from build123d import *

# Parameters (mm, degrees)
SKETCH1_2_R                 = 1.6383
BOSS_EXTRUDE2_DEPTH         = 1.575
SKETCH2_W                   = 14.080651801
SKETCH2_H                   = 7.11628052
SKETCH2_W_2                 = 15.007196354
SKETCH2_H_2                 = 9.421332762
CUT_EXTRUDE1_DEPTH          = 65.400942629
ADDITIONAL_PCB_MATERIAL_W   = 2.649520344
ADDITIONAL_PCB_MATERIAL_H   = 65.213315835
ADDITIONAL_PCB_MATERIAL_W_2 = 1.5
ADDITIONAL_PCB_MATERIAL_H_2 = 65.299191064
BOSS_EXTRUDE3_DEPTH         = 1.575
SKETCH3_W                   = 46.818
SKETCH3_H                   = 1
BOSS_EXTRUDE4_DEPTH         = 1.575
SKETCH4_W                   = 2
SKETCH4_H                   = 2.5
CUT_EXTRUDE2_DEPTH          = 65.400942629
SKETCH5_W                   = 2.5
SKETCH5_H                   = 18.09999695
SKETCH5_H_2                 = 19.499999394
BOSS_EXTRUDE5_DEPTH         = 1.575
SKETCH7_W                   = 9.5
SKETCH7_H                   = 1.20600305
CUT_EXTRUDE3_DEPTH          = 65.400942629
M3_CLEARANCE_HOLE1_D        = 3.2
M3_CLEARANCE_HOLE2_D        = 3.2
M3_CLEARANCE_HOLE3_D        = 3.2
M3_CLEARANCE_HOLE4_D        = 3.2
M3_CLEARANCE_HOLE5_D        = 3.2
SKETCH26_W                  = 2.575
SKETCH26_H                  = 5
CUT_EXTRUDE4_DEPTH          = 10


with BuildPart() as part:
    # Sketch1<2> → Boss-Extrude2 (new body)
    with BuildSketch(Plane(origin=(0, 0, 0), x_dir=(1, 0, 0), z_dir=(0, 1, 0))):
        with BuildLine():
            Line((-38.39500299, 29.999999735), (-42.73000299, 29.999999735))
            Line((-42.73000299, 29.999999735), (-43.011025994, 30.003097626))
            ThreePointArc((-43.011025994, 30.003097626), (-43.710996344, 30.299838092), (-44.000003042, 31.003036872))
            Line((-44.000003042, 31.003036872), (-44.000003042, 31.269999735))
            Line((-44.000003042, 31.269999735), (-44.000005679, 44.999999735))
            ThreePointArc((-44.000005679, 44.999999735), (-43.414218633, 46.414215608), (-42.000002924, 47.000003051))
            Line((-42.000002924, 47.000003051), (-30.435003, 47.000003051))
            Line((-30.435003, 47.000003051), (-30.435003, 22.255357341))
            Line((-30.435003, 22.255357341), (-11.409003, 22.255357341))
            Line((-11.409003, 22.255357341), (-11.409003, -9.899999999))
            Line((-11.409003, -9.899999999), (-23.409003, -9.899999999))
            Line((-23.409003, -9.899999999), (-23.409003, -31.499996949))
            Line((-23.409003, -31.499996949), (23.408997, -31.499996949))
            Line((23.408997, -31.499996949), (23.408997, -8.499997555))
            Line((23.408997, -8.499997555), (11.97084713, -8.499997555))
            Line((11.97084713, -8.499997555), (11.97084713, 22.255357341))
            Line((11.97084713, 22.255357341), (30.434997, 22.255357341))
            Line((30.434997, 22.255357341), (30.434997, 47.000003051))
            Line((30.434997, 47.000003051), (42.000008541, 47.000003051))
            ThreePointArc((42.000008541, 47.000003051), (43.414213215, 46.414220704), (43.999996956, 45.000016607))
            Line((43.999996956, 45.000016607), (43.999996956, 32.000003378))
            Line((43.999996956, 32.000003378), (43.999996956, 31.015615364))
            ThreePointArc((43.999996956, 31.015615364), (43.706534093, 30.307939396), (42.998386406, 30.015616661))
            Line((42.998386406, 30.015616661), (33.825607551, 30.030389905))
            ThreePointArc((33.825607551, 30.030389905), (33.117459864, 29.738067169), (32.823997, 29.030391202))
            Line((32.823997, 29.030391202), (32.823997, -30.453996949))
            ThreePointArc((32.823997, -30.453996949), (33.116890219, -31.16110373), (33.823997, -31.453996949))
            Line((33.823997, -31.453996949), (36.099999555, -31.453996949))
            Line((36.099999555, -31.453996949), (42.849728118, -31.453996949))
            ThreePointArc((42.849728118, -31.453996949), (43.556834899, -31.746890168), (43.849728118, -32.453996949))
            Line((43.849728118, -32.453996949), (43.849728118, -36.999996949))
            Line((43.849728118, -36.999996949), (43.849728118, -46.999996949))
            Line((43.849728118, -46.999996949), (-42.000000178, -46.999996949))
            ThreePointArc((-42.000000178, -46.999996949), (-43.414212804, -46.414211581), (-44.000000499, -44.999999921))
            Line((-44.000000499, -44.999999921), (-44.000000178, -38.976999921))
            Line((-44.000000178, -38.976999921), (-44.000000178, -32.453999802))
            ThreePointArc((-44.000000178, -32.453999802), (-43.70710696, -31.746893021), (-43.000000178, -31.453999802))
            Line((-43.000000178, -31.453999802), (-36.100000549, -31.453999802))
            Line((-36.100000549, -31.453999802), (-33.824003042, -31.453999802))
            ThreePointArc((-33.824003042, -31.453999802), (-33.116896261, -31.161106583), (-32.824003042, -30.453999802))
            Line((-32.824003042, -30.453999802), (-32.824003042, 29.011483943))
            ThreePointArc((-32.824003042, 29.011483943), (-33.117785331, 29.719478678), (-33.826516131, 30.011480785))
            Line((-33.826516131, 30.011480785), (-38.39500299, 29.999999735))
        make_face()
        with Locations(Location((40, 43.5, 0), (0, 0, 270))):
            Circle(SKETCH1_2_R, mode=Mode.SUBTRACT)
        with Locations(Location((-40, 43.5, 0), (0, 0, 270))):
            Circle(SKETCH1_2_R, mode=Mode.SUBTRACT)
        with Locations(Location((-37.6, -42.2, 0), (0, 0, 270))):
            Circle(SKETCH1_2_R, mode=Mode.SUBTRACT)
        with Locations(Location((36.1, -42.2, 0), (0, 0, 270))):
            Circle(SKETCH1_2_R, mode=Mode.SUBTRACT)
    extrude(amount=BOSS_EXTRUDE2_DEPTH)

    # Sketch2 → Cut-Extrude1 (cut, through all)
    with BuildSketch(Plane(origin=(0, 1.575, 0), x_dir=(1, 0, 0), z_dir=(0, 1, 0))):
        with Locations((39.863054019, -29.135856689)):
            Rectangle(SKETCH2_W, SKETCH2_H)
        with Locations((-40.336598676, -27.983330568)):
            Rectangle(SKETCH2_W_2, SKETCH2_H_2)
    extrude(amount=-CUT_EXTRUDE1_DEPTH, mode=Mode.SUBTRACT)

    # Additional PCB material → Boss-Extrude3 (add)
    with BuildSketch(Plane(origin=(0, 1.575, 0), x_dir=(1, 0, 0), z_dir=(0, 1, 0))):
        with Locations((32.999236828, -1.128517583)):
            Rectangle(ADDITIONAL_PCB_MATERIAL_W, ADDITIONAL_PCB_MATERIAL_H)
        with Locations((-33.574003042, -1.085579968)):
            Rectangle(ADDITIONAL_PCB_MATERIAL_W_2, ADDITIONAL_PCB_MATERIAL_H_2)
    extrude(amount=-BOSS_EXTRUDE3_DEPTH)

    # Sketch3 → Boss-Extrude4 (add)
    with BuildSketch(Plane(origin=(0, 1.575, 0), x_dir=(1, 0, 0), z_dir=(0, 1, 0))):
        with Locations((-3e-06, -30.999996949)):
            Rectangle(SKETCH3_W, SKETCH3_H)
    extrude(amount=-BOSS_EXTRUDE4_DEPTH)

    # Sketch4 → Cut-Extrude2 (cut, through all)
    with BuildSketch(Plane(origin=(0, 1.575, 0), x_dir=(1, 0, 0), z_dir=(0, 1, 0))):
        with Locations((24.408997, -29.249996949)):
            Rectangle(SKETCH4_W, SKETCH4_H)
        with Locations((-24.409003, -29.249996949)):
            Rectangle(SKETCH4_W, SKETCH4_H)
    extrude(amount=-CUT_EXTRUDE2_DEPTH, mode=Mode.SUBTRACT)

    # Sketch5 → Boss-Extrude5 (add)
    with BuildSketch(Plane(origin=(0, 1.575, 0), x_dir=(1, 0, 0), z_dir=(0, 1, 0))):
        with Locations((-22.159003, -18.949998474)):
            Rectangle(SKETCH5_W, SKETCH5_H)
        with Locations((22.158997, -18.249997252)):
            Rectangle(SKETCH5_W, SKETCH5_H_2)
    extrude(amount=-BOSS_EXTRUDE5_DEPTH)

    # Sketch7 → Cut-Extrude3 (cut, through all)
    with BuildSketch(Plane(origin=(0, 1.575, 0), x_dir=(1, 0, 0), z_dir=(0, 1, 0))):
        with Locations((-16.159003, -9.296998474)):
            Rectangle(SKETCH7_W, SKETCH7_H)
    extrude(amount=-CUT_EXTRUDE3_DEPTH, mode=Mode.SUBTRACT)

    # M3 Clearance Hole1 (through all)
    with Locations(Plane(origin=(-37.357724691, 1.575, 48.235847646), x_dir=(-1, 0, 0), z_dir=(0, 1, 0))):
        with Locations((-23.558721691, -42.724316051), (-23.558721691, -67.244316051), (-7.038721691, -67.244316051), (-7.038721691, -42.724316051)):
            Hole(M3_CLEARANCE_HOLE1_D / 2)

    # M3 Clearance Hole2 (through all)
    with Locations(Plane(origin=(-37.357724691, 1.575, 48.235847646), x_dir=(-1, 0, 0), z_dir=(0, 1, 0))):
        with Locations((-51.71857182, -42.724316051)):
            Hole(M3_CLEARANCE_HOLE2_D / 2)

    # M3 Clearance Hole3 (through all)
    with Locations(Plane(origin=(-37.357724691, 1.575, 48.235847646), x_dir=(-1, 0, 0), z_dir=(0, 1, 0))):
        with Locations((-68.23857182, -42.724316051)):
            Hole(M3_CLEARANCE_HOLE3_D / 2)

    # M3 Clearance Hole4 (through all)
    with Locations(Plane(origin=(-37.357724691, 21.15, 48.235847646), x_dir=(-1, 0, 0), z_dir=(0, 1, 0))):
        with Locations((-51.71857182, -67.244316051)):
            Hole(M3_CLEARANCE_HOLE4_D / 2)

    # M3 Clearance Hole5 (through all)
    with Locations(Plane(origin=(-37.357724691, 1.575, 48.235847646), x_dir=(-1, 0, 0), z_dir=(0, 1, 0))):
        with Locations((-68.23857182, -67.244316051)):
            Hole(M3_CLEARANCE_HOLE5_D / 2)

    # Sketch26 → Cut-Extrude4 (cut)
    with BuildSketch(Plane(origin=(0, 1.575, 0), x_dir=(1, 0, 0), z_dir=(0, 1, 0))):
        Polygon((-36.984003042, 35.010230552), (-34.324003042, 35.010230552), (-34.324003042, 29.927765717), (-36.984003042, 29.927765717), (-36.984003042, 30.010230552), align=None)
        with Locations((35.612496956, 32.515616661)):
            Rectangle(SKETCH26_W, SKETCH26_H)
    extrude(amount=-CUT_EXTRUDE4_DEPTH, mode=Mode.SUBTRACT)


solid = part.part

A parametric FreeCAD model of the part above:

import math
import FreeCAD as App
import Part
import Sketcher

V = App.Vector
Q = App.Units.Quantity


def add_polygon(sketch, points):
    """Adds a closed chain of lines whose ends are joined by coincident constraints."""
    first, n = sketch.GeometryCount, len(points)
    for a, b in zip(points, points[1:] + points[:1]):
        sketch.addGeometry(Part.LineSegment(App.Vector(*a, 0), App.Vector(*b, 0)), False)
    for i in range(n):
        sketch.addConstraint(Sketcher.Constraint("Coincident", first + i, 2, first + (i + 1) % n, 1))

doc = App.newDocument("Part")
body = doc.addObject("PartDesign::Body", "Body")

# Sketch on XZ plane
sketch1 = body.newObject("Sketcher::SketchObject", "Sketch")
sketch1.AttachmentSupport = (doc.getObject("XZ_Plane"), [""])
sketch1.MapMode = "FlatFace"
sketch1.addGeometry(Part.LineSegment(V(-42.730003, -30, 0), V(-38.395003, -30, 0)), False)
sketch1.addGeometry(Part.LineSegment(V(-38.395003, -30, 0), V(-33.826516, -30.011481, 0)), False)
sketch1.addGeometry(Part.ArcOfCircle(Part.Circle(V(-33.824003, -29.011484, 0), V(0, 0, 1), 1), math.radians(-90.14399), math.radians(0)), False)
sketch1.addGeometry(Part.LineSegment(V(-32.824003, -29.011484, 0), V(-32.824003, 30.454, 0)), False)
sketch1.addGeometry(Part.ArcOfCircle(Part.Circle(V(-33.824003, 30.454, 0), V(0, 0, 1), 1), math.radians(0), math.radians(90)), False)
sketch1.addGeometry(Part.LineSegment(V(-33.824003, 31.454, 0), V(-43, 31.454, 0)), False)
sketch1.addGeometry(Part.ArcOfCircle(Part.Circle(V(-43, 32.454, 0), V(0, 0, 1), 1), math.radians(180), math.radians(270)), False)
sketch1.addGeometry(Part.LineSegment(V(-44, 32.454, 0), V(-44, 38.977, 0)), False)
sketch1.addGeometry(Part.LineSegment(V(-44, 38.977, 0), V(-44, 45, 0)), False)
sketch1.addGeometry(Part.ArcOfCircle(Part.Circle(V(-42, 44.999997, 0), V(0, 0, 1), 2), math.radians(90), math.radians(179.999906)), False)
sketch1.addGeometry(Part.LineSegment(V(-42, 46.999997, 0), V(43.849728, 46.999997, 0)), False)
sketch1.addGeometry(Part.LineSegment(V(43.849728, 46.999997, 0), V(43.849728, 32.453997, 0)), False)
sketch1.addGeometry(Part.ArcOfCircle(Part.Circle(V(42.849728, 32.453997, 0), V(0, 0, 1), 1), math.radians(-90), math.radians(0)), False)
sketch1.addGeometry(Part.LineSegment(V(42.849728, 31.453997, 0), V(33.823997, 31.453997, 0)), False)
sketch1.addGeometry(Part.ArcOfCircle(Part.Circle(V(33.823997, 30.453997, 0), V(0, 0, 1), 1), math.radians(90), math.radians(180)), False)
sketch1.addGeometry(Part.LineSegment(V(32.823997, 30.453997, 0), V(32.823997, -29.030391, 0)), False)
sketch1.addGeometry(Part.ArcOfCircle(Part.Circle(V(33.823997, -29.030391, 0), V(0, 0, 1), 1), math.radians(-180), math.radians(-89.907722)), False)
sketch1.addGeometry(Part.LineSegment(V(33.825608, -30.03039, 0), V(42.998386, -30.015617, 0)), False)
sketch1.addGeometry(Part.ArcOfCircle(Part.Circle(V(42.999997, -31.015615, 0), V(0, 0, 1), 1), math.radians(0), math.radians(90.092278)), False)
sketch1.addGeometry(Part.LineSegment(V(43.999997, -31.015615, 0), V(43.999997, -45.000017, 0)), False)
sketch1.addGeometry(Part.ArcOfCircle(Part.Circle(V(42.000009, -45.000015, 0), V(0, 0, 1), 1.999988), math.radians(-90), math.radians(-0.000056)), False)
sketch1.addGeometry(Part.LineSegment(V(42.000009, -47.000003, 0), V(30.434997, -47.000003, 0)), False)
sketch1.addGeometry(Part.LineSegment(V(30.434997, -47.000003, 0), V(30.434997, -22.255357, 0)), False)
sketch1.addGeometry(Part.LineSegment(V(30.434997, -22.255357, 0), V(11.970847, -22.255357, 0)), False)
sketch1.addGeometry(Part.LineSegment(V(11.970847, -22.255357, 0), V(11.970847, 8.499998, 0)), False)
sketch1.addGeometry(Part.LineSegment(V(11.970847, 8.499998, 0), V(23.408997, 8.499998, 0)), False)
sketch1.addGeometry(Part.LineSegment(V(23.408997, 8.499998, 0), V(23.408997, 31.499997, 0)), False)
sketch1.addGeometry(Part.LineSegment(V(23.408997, 31.499997, 0), V(-23.409003, 31.499997, 0)), False)
sketch1.addGeometry(Part.LineSegment(V(-23.409003, 31.499997, 0), V(-23.409003, 9.9, 0)), False)
sketch1.addGeometry(Part.LineSegment(V(-23.409003, 9.9, 0), V(-11.409003, 9.9, 0)), False)
sketch1.addGeometry(Part.LineSegment(V(-11.409003, 9.9, 0), V(-11.409003, -22.255357, 0)), False)
sketch1.addGeometry(Part.LineSegment(V(-11.409003, -22.255357, 0), V(-30.435003, -22.255357, 0)), False)
sketch1.addGeometry(Part.LineSegment(V(-30.435003, -22.255357, 0), V(-30.435003, -47.000003, 0)), False)
sketch1.addGeometry(Part.LineSegment(V(-30.435003, -47.000003, 0), V(-42.000003, -47.000003, 0)), False)
sketch1.addGeometry(Part.ArcOfCircle(Part.Circle(V(-42.000003, -45, 0), V(0, 0, 1), 2.000003), math.radians(179.999984), math.radians(270)), False)
sketch1.addGeometry(Part.LineSegment(V(-44.000006, -45, 0), V(-44.000003, -31.27, 0)), False)
sketch1.addGeometry(Part.LineSegment(V(-44.000003, -31.27, 0), V(-44.000003, -31.003037, 0)), False)
sketch1.addGeometry(Part.ArcOfCircle(Part.Circle(V(-43.000003, -31.003037, 0), V(0, 0, 1), 1), math.radians(90.631581), math.radians(180)), False)
sketch1.addGeometry(Part.LineSegment(V(-43.011026, -30.003098, 0), V(-42.730003, -30, 0)), False)
sketch1.addGeometry(Part.Circle(V(36.1, 42.2, 0), V(0, 0, 1), 1.6383), False)
sketch1.addGeometry(Part.Circle(V(-37.6, 42.2, 0), V(0, 0, 1), 1.6383), False)
sketch1.addGeometry(Part.Circle(V(40, -43.5, 0), V(0, 0, 1), 1.6383), False)
sketch1.addGeometry(Part.Circle(V(-40, -43.5, 0), V(0, 0, 1), 1.6383), False)
sketch1.addConstraint(Sketcher.Constraint("Coincident", 0, 2, 1, 1))
sketch1.addConstraint(Sketcher.Constraint("Tangent", 1, 2, 2, 1))
sketch1.addConstraint(Sketcher.Constraint("Tangent", 2, 2, 3, 1))
sketch1.addConstraint(Sketcher.Constraint("Tangent", 3, 2, 4, 1))
sketch1.addConstraint(Sketcher.Constraint("Tangent", 4, 2, 5, 1))
sketch1.addConstraint(Sketcher.Constraint("Tangent", 5, 2, 6, 2))
sketch1.addConstraint(Sketcher.Constraint("Tangent", 6, 1, 7, 1))
sketch1.addConstraint(Sketcher.Constraint("Coincident", 7, 2, 8, 1))
sketch1.addConstraint(Sketcher.Constraint("Tangent", 8, 2, 9, 2))
sketch1.addConstraint(Sketcher.Constraint("Tangent", 9, 1, 10, 1))
sketch1.addConstraint(Sketcher.Constraint("Coincident", 10, 2, 11, 1))
sketch1.addConstraint(Sketcher.Constraint("Tangent", 11, 2, 12, 2))
sketch1.addConstraint(Sketcher.Constraint("Tangent", 12, 1, 13, 1))
sketch1.addConstraint(Sketcher.Constraint("Tangent", 13, 2, 14, 1))
sketch1.addConstraint(Sketcher.Constraint("Tangent", 14, 2, 15, 1))
sketch1.addConstraint(Sketcher.Constraint("Tangent", 15, 2, 16, 1))
sketch1.addConstraint(Sketcher.Constraint("Tangent", 16, 2, 17, 1))
sketch1.addConstraint(Sketcher.Constraint("Tangent", 17, 2, 18, 2))
sketch1.addConstraint(Sketcher.Constraint("Tangent", 18, 1, 19, 1))
sketch1.addConstraint(Sketcher.Constraint("Tangent", 19, 2, 20, 2))
sketch1.addConstraint(Sketcher.Constraint("Tangent", 20, 1, 21, 1))
sketch1.addConstraint(Sketcher.Constraint("Coincident", 21, 2, 22, 1))
sketch1.addConstraint(Sketcher.Constraint("Coincident", 22, 2, 23, 1))
sketch1.addConstraint(Sketcher.Constraint("Coincident", 23, 2, 24, 1))
sketch1.addConstraint(Sketcher.Constraint("Coincident", 24, 2, 25, 1))
sketch1.addConstraint(Sketcher.Constraint("Coincident", 25, 2, 26, 1))
sketch1.addConstraint(Sketcher.Constraint("Coincident", 26, 2, 27, 1))
sketch1.addConstraint(Sketcher.Constraint("Coincident", 27, 2, 28, 1))
sketch1.addConstraint(Sketcher.Constraint("Coincident", 28, 2, 29, 1))
sketch1.addConstraint(Sketcher.Constraint("Coincident", 29, 2, 30, 1))
sketch1.addConstraint(Sketcher.Constraint("Coincident", 30, 2, 31, 1))
sketch1.addConstraint(Sketcher.Constraint("Coincident", 31, 2, 32, 1))
sketch1.addConstraint(Sketcher.Constraint("Coincident", 32, 2, 33, 1))
sketch1.addConstraint(Sketcher.Constraint("Tangent", 33, 2, 34, 2))
sketch1.addConstraint(Sketcher.Constraint("Tangent", 34, 1, 35, 1))
sketch1.addConstraint(Sketcher.Constraint("Coincident", 35, 2, 36, 1))
sketch1.addConstraint(Sketcher.Constraint("Tangent", 36, 2, 37, 2))
sketch1.addConstraint(Sketcher.Constraint("Tangent", 37, 1, 38, 1))
sketch1.addConstraint(Sketcher.Constraint("Coincident", 38, 2, 0, 1))
sketch1.addConstraint(Sketcher.Constraint("Horizontal", 0))
sketch1.addConstraint(Sketcher.Constraint("Vertical", 3))
sketch1.addConstraint(Sketcher.Constraint("Horizontal", 5))
sketch1.addConstraint(Sketcher.Constraint("Vertical", 7))
sketch1.addConstraint(Sketcher.Constraint("Vertical", 8))
sketch1.addConstraint(Sketcher.Constraint("Horizontal", 10))
sketch1.addConstraint(Sketcher.Constraint("Vertical", 11))
sketch1.addConstraint(Sketcher.Constraint("Horizontal", 13))
sketch1.addConstraint(Sketcher.Constraint("Vertical", 15))
sketch1.addConstraint(Sketcher.Constraint("Vertical", 19))
sketch1.addConstraint(Sketcher.Constraint("Horizontal", 21))
sketch1.addConstraint(Sketcher.Constraint("Vertical", 22))
sketch1.addConstraint(Sketcher.Constraint("Horizontal", 23))
sketch1.addConstraint(Sketcher.Constraint("Vertical", 24))
sketch1.addConstraint(Sketcher.Constraint("Horizontal", 25))
sketch1.addConstraint(Sketcher.Constraint("Vertical", 26))
sketch1.addConstraint(Sketcher.Constraint("Horizontal", 27))
sketch1.addConstraint(Sketcher.Constraint("Vertical", 28))
sketch1.addConstraint(Sketcher.Constraint("Horizontal", 29))
sketch1.addConstraint(Sketcher.Constraint("Vertical", 30))
sketch1.addConstraint(Sketcher.Constraint("Horizontal", 31))
sketch1.addConstraint(Sketcher.Constraint("Vertical", 32))
sketch1.addConstraint(Sketcher.Constraint("Horizontal", 33))
sketch1.addConstraint(Sketcher.Constraint("Vertical", 36))
sketch1.addConstraint(Sketcher.Constraint("Equal", 2, 4))
sketch1.addConstraint(Sketcher.Constraint("Equal", 4, 6))
sketch1.addConstraint(Sketcher.Constraint("Equal", 6, 12))
sketch1.addConstraint(Sketcher.Constraint("Equal", 12, 14))
sketch1.addConstraint(Sketcher.Constraint("Equal", 14, 16))
sketch1.addConstraint(Sketcher.Constraint("Equal", 16, 18))
sketch1.addConstraint(Sketcher.Constraint("Equal", 18, 37))
sketch1.addConstraint(Sketcher.Constraint("Equal", 39, 40))
sketch1.addConstraint(Sketcher.Constraint("Equal", 40, 41))
sketch1.addConstraint(Sketcher.Constraint("Equal", 41, 42))
sketch1.addConstraint(Sketcher.Constraint("Symmetric", 4, 3, 14, 3, -2))
sketch1.addConstraint(Sketcher.Constraint("Symmetric", 41, 3, 42, 3, -2))
sketch1.addConstraint(Sketcher.Constraint("Symmetric", 22, 2, 31, 2, -2))
sketch1.addConstraint(Sketcher.Constraint("Symmetric", 20, 1, 33, 2, -2))
sketch1.addConstraint(Sketcher.Constraint("Symmetric", 9, 3, 34, 3, -1))
sketch1.addConstraint(Sketcher.Constraint("Symmetric", 8, 2, 34, 1, -1))
sketch1.addConstraint(Sketcher.Constraint("Horizontal", 39, 3, 40, 3))
sketch1.addConstraint(Sketcher.Constraint("Radius", 2, Q("1 mm")))
sketch1.addConstraint(Sketcher.Constraint("Radius", 9, Q("2 mm")))
sketch1.addConstraint(Sketcher.Constraint("DistanceX", 29, 1, 29, 2, Q("12 mm")))
sketch1.addConstraint(Sketcher.Constraint("DistanceY", 26, 1, 26, 2, Q("22.999999 mm")))
sketch1.addConstraint(Sketcher.Constraint("DistanceX", 6, 3, -1, 1, Q("43 mm")))
sketch1.addConstraint(Sketcher.Constraint("DistanceY", 34, 3, -1, 1, Q("45 mm")))
sketch1.addConstraint(Sketcher.Constraint("DistanceX", -1, 1, 41, 3, Q("40 mm")))
sketch1.addConstraint(Sketcher.Constraint("DistanceY", 0, 2, -1, 1, Q("30 mm")))
sketch1.addConstraint(Sketcher.Constraint("Diameter", 39, Q("3.2766 mm")))
sketch1.addConstraint(Sketcher.Constraint("DistanceX", -1, 1, 39, 3, Q("36.1 mm")))
sketch1.addConstraint(Sketcher.Constraint("DistanceY", -1, 1, 39, 3, Q("42.2 mm")))
sketch1.addConstraint(Sketcher.Constraint("DistanceX", 40, 3, -1, 1, Q("37.6 mm")))
sketch1.addConstraint(Sketcher.Constraint("DistanceY", 41, 3, -1, 1, Q("43.5 mm")))
sketch1.addConstraint(Sketcher.Constraint("DistanceY", -1, 1, 28, 2, Q("9.9 mm")))
sketch1.addConstraint(Sketcher.Constraint("Distance", 35, Q("13.73 mm")))
sketch1.addConstraint(Sketcher.Constraint("DistanceX", 0, 1, 0, 2, Q("4.335 mm")))
sketch1.addConstraint(Sketcher.Constraint("DistanceX", 27, 2, 27, 1, Q("46.818 mm")))
sketch1.addConstraint(Sketcher.Constraint("DistanceX", 31, 2, 31, 1, Q("19.026 mm")))
sketch1.addConstraint(Sketcher.Constraint("DistanceX", 33, 2, 33, 1, Q("11.565 mm")))
sketch1.addConstraint(Sketcher.Constraint("DistanceY", 7, 1, 7, 2, Q("6.523 mm")))
sketch1.addConstraint(Sketcher.Constraint("DistanceY", 8, 1, 8, 2, Q("6.023 mm")))
sketch1.addConstraint(Sketcher.Constraint("Radius", 20, Q("1.999988 mm")))
sketch1.addConstraint(Sketcher.Constraint("DistanceX", 0, 2, 31, 2, Q("7.96 mm")))
sketch1.addConstraint(Sketcher.Constraint("DistanceY", 19, 2, 19, 1, Q("13.984401 mm")))
sketch1.addConstraint(Sketcher.Constraint("DistanceX", 4, 3, 14, 3, Q("67.648 mm")))
sketch1.addConstraint(Sketcher.Constraint("DistanceY", 24, 2, 14, 2, Q("21.953999 mm")))
sketch1.addConstraint(Sketcher.Constraint("Distance", 1, Q("4.568501 mm")))
sketch1.addConstraint(Sketcher.Constraint("DistanceX", 10, 1, 10, 2, Q("85.849728 mm")))
sketch1.addConstraint(Sketcher.Constraint("DistanceX", 23, 2, 23, 1, Q("18.46415 mm")))
sketch1.addConstraint(Sketcher.Constraint("DistanceY", 15, 2, 15, 1, Q("59.484388 mm")))
sketch1.addConstraint(Sketcher.Constraint("Distance", 38, Q("0.28104 mm")))
sketch1.addConstraint(Sketcher.Constraint("DistanceY", 22, 1, 22, 2, Q("24.744646 mm")))
pad1 = body.newObject("PartDesign::Pad", "Pad")
pad1.Profile = sketch1
pad1.Length = 1.575
pad1.Reversed = True

# Sketch on XZ plane
sketch2 = body.newObject("Sketcher::SketchObject", "Sketch001")
sketch2.AttachmentSupport = (doc.getObject("XZ_Plane"), [""])
sketch2.MapMode = "FlatFace"
sketch2.AttachmentOffset = App.Placement(V(0, 0, -1.575), App.Rotation())
add_polygon(sketch2, [(32.822728, 25.577716), (32.822728, 32.693997), (46.90338, 32.693997), (46.90338, 25.577716)])  # lines 0-3
add_polygon(sketch2, [(-47.840197, 23.272664), (-47.840197, 32.693997), (-32.833, 32.693997), (-32.833, 23.272664)])  # lines 4-7
sketch2.addConstraint(Sketcher.Constraint("Vertical", 0))
sketch2.addConstraint(Sketcher.Constraint("Horizontal", 1))
sketch2.addConstraint(Sketcher.Constraint("Vertical", 2))
sketch2.addConstraint(Sketcher.Constraint("Horizontal", 3))
sketch2.addConstraint(Sketcher.Constraint("Vertical", 4))
sketch2.addConstraint(Sketcher.Constraint("Horizontal", 5))
sketch2.addConstraint(Sketcher.Constraint("Vertical", 6))
sketch2.addConstraint(Sketcher.Constraint("Horizontal", 7))
sketch2.addConstraint(Sketcher.Constraint("Horizontal", 1, 2, 4, 2))
sketch2.addConstraint(Sketcher.Constraint("DistanceX", 5, 2, -1, 1, Q("32.833 mm")))
sketch2.addConstraint(Sketcher.Constraint("DistanceX", 1, 1, 1, 2, Q("14.080652 mm")))
sketch2.addConstraint(Sketcher.Constraint("DistanceY", 0, 1, 0, 2, Q("7.116281 mm")))
sketch2.addConstraint(Sketcher.Constraint("DistanceX", 5, 1, 5, 2, Q("15.007196 mm")))
sketch2.addConstraint(Sketcher.Constraint("DistanceY", 4, 1, 4, 2, Q("9.421333 mm")))
sketch2.addConstraint(Sketcher.Constraint("DistanceX", -1, 1, 0, 2, Q("32.822728 mm")))
sketch2.addConstraint(Sketcher.Constraint("DistanceY", -1, 1, 0, 2, Q("32.693997 mm")))
pocket1 = body.newObject("PartDesign::Pocket", "Pocket")
pocket1.Profile = sketch2
pocket1.Type = "ThroughAll"
pocket1.Reversed = True

# Sketch on XZ plane
sketch3 = body.newObject("Sketcher::SketchObject", "Sketch002")
sketch3.AttachmentSupport = (doc.getObject("XZ_Plane"), [""])
sketch3.MapMode = "FlatFace"
sketch3.AttachmentOffset = App.Placement(V(0, 0, -1.575), App.Rotation())
add_polygon(sketch3, [(31.674477, -31.47814), (31.674477, 33.735175), (34.323997, 33.735175), (34.323997, -31.47814)])  # lines 0-3
add_polygon(sketch3, [(-34.324003, -31.564016), (-34.324003, 33.735175), (-32.824003, 33.735175), (-32.824003, -31.564016)])  # lines 4-7
sketch3.addConstraint(Sketcher.Constraint("Vertical", 0))
sketch3.addConstraint(Sketcher.Constraint("Horizontal", 1))
sketch3.addConstraint(Sketcher.Constraint("Vertical", 2))
sketch3.addConstraint(Sketcher.Constraint("Horizontal", 3))
sketch3.addConstraint(Sketcher.Constraint("Vertical", 4))
sketch3.addConstraint(Sketcher.Constraint("Horizontal", 5))
sketch3.addConstraint(Sketcher.Constraint("Vertical", 6))
sketch3.addConstraint(Sketcher.Constraint("Horizontal", 7))
sketch3.addConstraint(Sketcher.Constraint("Symmetric", 1, 2, 4, 2, -2))
sketch3.addConstraint(Sketcher.Constraint("DistanceX", 5, 1, 5, 2, Q("1.5 mm")))
sketch3.addConstraint(Sketcher.Constraint("DistanceX", 4, 2, 1, 2, Q("68.648 mm")))
sketch3.addConstraint(Sketcher.Constraint("DistanceX", 1, 1, 1, 2, Q("2.64952 mm")))
sketch3.addConstraint(Sketcher.Constraint("DistanceY", 4, 1, 4, 2, Q("65.299191 mm")))
sketch3.addConstraint(Sketcher.Constraint("DistanceY", 0, 1, 0, 2, Q("65.213316 mm")))
sketch3.addConstraint(Sketcher.Constraint("DistanceY", 2, 2, -1, 1, Q("31.47814 mm")))
pad2 = body.newObject("PartDesign::Pad", "Pad001")
pad2.Profile = sketch3
pad2.Length = 1.575

# Sketch on XZ plane
sketch4 = body.newObject("Sketcher::SketchObject", "Sketch003")
sketch4.AttachmentSupport = (doc.getObject("XZ_Plane"), [""])
sketch4.MapMode = "FlatFace"
sketch4.AttachmentOffset = App.Placement(V(0, 0, -1.575), App.Rotation())
add_polygon(sketch4, [(-23.409003, 30.499997), (-23.409003, 31.499997), (23.408997, 31.499997), (23.408997, 30.499997)])  # lines 0-3
sketch4.addConstraint(Sketcher.Constraint("Vertical", 0))
sketch4.addConstraint(Sketcher.Constraint("Horizontal", 1))
sketch4.addConstraint(Sketcher.Constraint("Vertical", 2))
sketch4.addConstraint(Sketcher.Constraint("Horizontal", 3))
sketch4.addConstraint(Sketcher.Constraint("DistanceY", 0, 1, 0, 2, Q("1 mm")))
sketch4.addConstraint(Sketcher.Constraint("DistanceX", 1, 1, 1, 2, Q("46.818 mm")))
sketch4.addConstraint(Sketcher.Constraint("DistanceX", 0, 2, -1, 1, Q("23.409003 mm")))
sketch4.addConstraint(Sketcher.Constraint("DistanceY", -1, 1, 0, 2, Q("31.499997 mm")))
pad3 = body.newObject("PartDesign::Pad", "Pad002")
pad3.Profile = sketch4
pad3.Length = 1.575

# Sketch on XZ plane
sketch5 = body.newObject("Sketcher::SketchObject", "Sketch004")
sketch5.AttachmentSupport = (doc.getObject("XZ_Plane"), [""])
sketch5.MapMode = "FlatFace"
sketch5.AttachmentOffset = App.Placement(V(0, 0, -1.575), App.Rotation())
add_polygon(sketch5, [(23.408997, 27.999997), (23.408997, 30.499997), (25.408997, 30.499997), (25.408997, 27.999997)])  # lines 0-3
add_polygon(sketch5, [(-25.409003, 27.999997), (-25.409003, 30.499997), (-23.409003, 30.499997), (-23.409003, 27.999997)])  # lines 4-7
sketch5.addConstraint(Sketcher.Constraint("Vertical", 0))
sketch5.addConstraint(Sketcher.Constraint("Horizontal", 1))
sketch5.addConstraint(Sketcher.Constraint("Vertical", 2))
sketch5.addConstraint(Sketcher.Constraint("Horizontal", 3))
sketch5.addConstraint(Sketcher.Constraint("Vertical", 4))
sketch5.addConstraint(Sketcher.Constraint("Horizontal", 5))
sketch5.addConstraint(Sketcher.Constraint("Vertical", 6))
sketch5.addConstraint(Sketcher.Constraint("Horizontal", 7))
sketch5.addConstraint(Sketcher.Constraint("Symmetric", 1, 2, 4, 2, -2))
sketch5.addConstraint(Sketcher.Constraint("Symmetric", 3, 2, 6, 2, -2))
sketch5.addConstraint(Sketcher.Constraint("DistanceX", 1, 1, 1, 2, Q("2 mm")))
sketch5.addConstraint(Sketcher.Constraint("DistanceY", 0, 1, 0, 2, Q("2.5 mm")))
sketch5.addConstraint(Sketcher.Constraint("DistanceX", 4, 2, 0, 2, Q("48.818 mm")))
sketch5.addConstraint(Sketcher.Constraint("DistanceY", -1, 1, 0, 2, Q("30.499997 mm")))
pocket2 = body.newObject("PartDesign::Pocket", "Pocket001")
pocket2.Profile = sketch5
pocket2.Type = "ThroughAll"
pocket2.Reversed = True

# Sketch on XZ plane
sketch6 = body.newObject("Sketcher::SketchObject", "Sketch005")
sketch6.AttachmentSupport = (doc.getObject("XZ_Plane"), [""])
sketch6.MapMode = "FlatFace"
sketch6.AttachmentOffset = App.Placement(V(0, 0, -1.575), App.Rotation())
add_polygon(sketch6, [(-23.409003, 9.9), (-23.409003, 27.999997), (-20.909003, 27.999997), (-20.909003, 9.9)])  # lines 0-3
add_polygon(sketch6, [(20.908997, 8.499998), (20.908997, 27.999997), (23.408997, 27.999997), (23.408997, 8.499998)])  # lines 4-7
sketch6.addConstraint(Sketcher.Constraint("Vertical", 0))
sketch6.addConstraint(Sketcher.Constraint("Horizontal", 1))
sketch6.addConstraint(Sketcher.Constraint("Vertical", 2))
sketch6.addConstraint(Sketcher.Constraint("Horizontal", 3))
sketch6.addConstraint(Sketcher.Constraint("Vertical", 4))
sketch6.addConstraint(Sketcher.Constraint("Horizontal", 5))
sketch6.addConstraint(Sketcher.Constraint("Vertical", 6))
sketch6.addConstraint(Sketcher.Constraint("Horizontal", 7))
sketch6.addConstraint(Sketcher.Constraint("Symmetric", 1, 2, 4, 2, -2))
sketch6.addConstraint(Sketcher.Constraint("Equal", 3, 5))
sketch6.addConstraint(Sketcher.Constraint("DistanceX", 1, 1, 1, 2, Q("2.5 mm")))
sketch6.addConstraint(Sketcher.Constraint("DistanceY", 4, 1, 4, 2, Q("19.499999 mm")))
sketch6.addConstraint(Sketcher.Constraint("DistanceY", -1, 1, 2, 2, Q("9.9 mm")))
sketch6.addConstraint(Sketcher.Constraint("DistanceX", 1, 2, 4, 2, Q("41.818 mm")))
sketch6.addConstraint(Sketcher.Constraint("DistanceY", 0, 1, 0, 2, Q("18.099997 mm")))
pad4 = body.newObject("PartDesign::Pad", "Pad003")
pad4.Profile = sketch6
pad4.Length = 1.575

# Sketch on XZ plane
sketch7 = body.newObject("Sketcher::SketchObject", "Sketch006")
sketch7.AttachmentSupport = (doc.getObject("XZ_Plane"), [""])
sketch7.MapMode = "FlatFace"
sketch7.AttachmentOffset = App.Placement(V(0, 0, -1.575), App.Rotation())
add_polygon(sketch7, [(-20.909003, 8.693997), (-20.909003, 9.9), (-11.409003, 9.9), (-11.409003, 8.693997)])  # lines 0-3
sketch7.addConstraint(Sketcher.Constraint("Vertical", 0))
sketch7.addConstraint(Sketcher.Constraint("Horizontal", 1))
sketch7.addConstraint(Sketcher.Constraint("Vertical", 2))
sketch7.addConstraint(Sketcher.Constraint("Horizontal", 3))
sketch7.addConstraint(Sketcher.Constraint("DistanceX", 1, 1, 1, 2, Q("9.5 mm")))
sketch7.addConstraint(Sketcher.Constraint("DistanceY", -1, 1, 0, 2, Q("9.9 mm")))
sketch7.addConstraint(Sketcher.Constraint("DistanceY", 0, 1, 0, 2, Q("1.206003 mm")))
sketch7.addConstraint(Sketcher.Constraint("DistanceX", 0, 2, -1, 1, Q("20.909003 mm")))
pocket3 = body.newObject("PartDesign::Pocket", "Pocket002")
pocket3.Profile = sketch7
pocket3.Type = "ThroughAll"
pocket3.Reversed = True

# Sketch on XZ plane
sketch8 = body.newObject("Sketcher::SketchObject", "Sketch007")
sketch8.AttachmentSupport = (doc.getObject("XZ_Plane"), [""])
sketch8.MapMode = "FlatFace"
sketch8.AttachmentOffset = App.Placement(V(0, 0, -1.575), App.Rotation())
sketch8.addGeometry(Part.Circle(V(-13.799003, 5.511532, 0), V(0, 0, 1), 1.6), False)
sketch8.addGeometry(Part.Circle(V(-13.799003, -19.008468, 0), V(0, 0, 1), 1.6), False)
sketch8.addGeometry(Part.Circle(V(-30.319003, -19.008468, 0), V(0, 0, 1), 1.6), False)
sketch8.addGeometry(Part.Circle(V(-30.319003, 5.511532, 0), V(0, 0, 1), 1.6), False)
sketch8.addConstraint(Sketcher.Constraint("Equal", 0, 1))
sketch8.addConstraint(Sketcher.Constraint("Equal", 1, 2))
sketch8.addConstraint(Sketcher.Constraint("Equal", 2, 3))
sketch8.addConstraint(Sketcher.Constraint("Horizontal", 1, 3, 2, 3))
sketch8.addConstraint(Sketcher.Constraint("Horizontal", 0, 3, 3, 3))
sketch8.addConstraint(Sketcher.Constraint("Vertical", 0, 3, 1, 3))
sketch8.addConstraint(Sketcher.Constraint("Vertical", 2, 3, 3, 3))
sketch8.addConstraint(Sketcher.Constraint("Diameter", 0, Q("3.2 mm")))
sketch8.addConstraint(Sketcher.Constraint("DistanceY", 1, 3, 0, 3, Q("24.52 mm")))
sketch8.addConstraint(Sketcher.Constraint("DistanceX", 2, 3, 1, 3, Q("16.52 mm")))
sketch8.addConstraint(Sketcher.Constraint("DistanceY", -1, 1, 0, 3, Q("5.511532 mm")))
sketch8.addConstraint(Sketcher.Constraint("DistanceX", 0, 3, -1, 1, Q("13.799003 mm")))
doc.recompute()
hole = body.newObject("PartDesign::Hole", "Hole")
hole.Profile = sketch8
hole.ThreadType = "None"
hole.Diameter = 3.2
hole.DepthType = "ThroughAll"
hole.Reversed = True

# Sketch on XZ plane
sketch9 = body.newObject("Sketcher::SketchObject", "Sketch008")
sketch9.AttachmentSupport = (doc.getObject("XZ_Plane"), [""])
sketch9.MapMode = "FlatFace"
sketch9.AttachmentOffset = App.Placement(V(0, 0, -1.575), App.Rotation())
sketch9.addGeometry(Part.Circle(V(14.360847, 5.511532, 0), V(0, 0, 1), 1.6), False)
sketch9.addConstraint(Sketcher.Constraint("Diameter", 0, Q("3.2 mm")))
sketch9.addConstraint(Sketcher.Constraint("DistanceY", -1, 1, 0, 3, Q("5.511532 mm")))
sketch9.addConstraint(Sketcher.Constraint("DistanceX", -1, 1, 0, 3, Q("14.360847 mm")))
doc.recompute()
hole2 = body.newObject("PartDesign::Hole", "Hole001")
hole2.Profile = sketch9
hole2.ThreadType = "None"
hole2.Diameter = 3.2
hole2.DepthType = "ThroughAll"
hole2.Reversed = True

# Sketch on XZ plane
sketch10 = body.newObject("Sketcher::SketchObject", "Sketch009")
sketch10.AttachmentSupport = (doc.getObject("XZ_Plane"), [""])
sketch10.MapMode = "FlatFace"
sketch10.AttachmentOffset = App.Placement(V(0, 0, -1.575), App.Rotation())
sketch10.addGeometry(Part.Circle(V(30.880847, 5.511532, 0), V(0, 0, 1), 1.6), False)
sketch10.addConstraint(Sketcher.Constraint("Diameter", 0, Q("3.2 mm")))
sketch10.addConstraint(Sketcher.Constraint("DistanceY", -1, 1, 0, 3, Q("5.511532 mm")))
sketch10.addConstraint(Sketcher.Constraint("DistanceX", -1, 1, 0, 3, Q("30.880847 mm")))
doc.recompute()
hole3 = body.newObject("PartDesign::Hole", "Hole002")
hole3.Profile = sketch10
hole3.ThreadType = "None"
hole3.Diameter = 3.2
hole3.DepthType = "ThroughAll"
hole3.Reversed = True

# Sketch on XZ plane
sketch11 = body.newObject("Sketcher::SketchObject", "Sketch010")
sketch11.AttachmentSupport = (doc.getObject("XZ_Plane"), [""])
sketch11.MapMode = "FlatFace"
sketch11.AttachmentOffset = App.Placement(V(0, 0, -21.15), App.Rotation())
sketch11.addGeometry(Part.Circle(V(14.360847, -19.008468, 0), V(0, 0, 1), 1.6), False)
sketch11.addConstraint(Sketcher.Constraint("Diameter", 0, Q("3.2 mm")))
sketch11.addConstraint(Sketcher.Constraint("DistanceY", 0, 3, -1, 1, Q("19.008468 mm")))
sketch11.addConstraint(Sketcher.Constraint("DistanceX", -1, 1, 0, 3, Q("14.360847 mm")))
doc.recompute()
hole4 = body.newObject("PartDesign::Hole", "Hole003")
hole4.Profile = sketch11
hole4.ThreadType = "None"
hole4.Diameter = 3.2
hole4.DepthType = "ThroughAll"
hole4.Reversed = True

# Sketch on XZ plane
sketch12 = body.newObject("Sketcher::SketchObject", "Sketch011")
sketch12.AttachmentSupport = (doc.getObject("XZ_Plane"), [""])
sketch12.MapMode = "FlatFace"
sketch12.AttachmentOffset = App.Placement(V(0, 0, -1.575), App.Rotation())
sketch12.addGeometry(Part.Circle(V(30.880847, -19.008468, 0), V(0, 0, 1), 1.6), False)
sketch12.addConstraint(Sketcher.Constraint("Diameter", 0, Q("3.2 mm")))
sketch12.addConstraint(Sketcher.Constraint("DistanceY", 0, 3, -1, 1, Q("19.008468 mm")))
sketch12.addConstraint(Sketcher.Constraint("DistanceX", -1, 1, 0, 3, Q("30.880847 mm")))
doc.recompute()
hole5 = body.newObject("PartDesign::Hole", "Hole004")
hole5.Profile = sketch12
hole5.ThreadType = "None"
hole5.Diameter = 3.2
hole5.DepthType = "ThroughAll"
hole5.Reversed = True

# Sketch on XZ plane
sketch13 = body.newObject("Sketcher::SketchObject", "Sketch012")
sketch13.AttachmentSupport = (doc.getObject("XZ_Plane"), [""])
sketch13.MapMode = "FlatFace"
sketch13.AttachmentOffset = App.Placement(V(0, 0, -1.575), App.Rotation())
add_polygon(sketch13, [(-34.324003, -35.010231), (-36.984003, -35.010231), (-36.984003, -29.927766), (-34.324003, -29.927766)])  # lines 0-3
add_polygon(sketch13, [(34.324997, -35.015617), (34.324997, -30.015617), (36.899997, -30.015617), (36.899997, -35.015617)])  # lines 4-7
sketch13.addConstraint(Sketcher.Constraint("Horizontal", 0))
sketch13.addConstraint(Sketcher.Constraint("Vertical", 1))
sketch13.addConstraint(Sketcher.Constraint("Horizontal", 2))
sketch13.addConstraint(Sketcher.Constraint("Vertical", 3))
sketch13.addConstraint(Sketcher.Constraint("Vertical", 4))
sketch13.addConstraint(Sketcher.Constraint("Horizontal", 5))
sketch13.addConstraint(Sketcher.Constraint("Vertical", 6))
sketch13.addConstraint(Sketcher.Constraint("Horizontal", 7))
sketch13.addConstraint(Sketcher.Constraint("DistanceY", 4, 1, 4, 2, Q("5 mm")))
sketch13.addConstraint(Sketcher.Constraint("DistanceX", 0, 2, 0, 1, Q("2.66 mm")))
sketch13.addConstraint(Sketcher.Constraint("DistanceX", 5, 1, 5, 2, Q("2.575 mm")))
sketch13.addConstraint(Sketcher.Constraint("DistanceX", 2, 2, 4, 2, Q("68.649 mm")))
sketch13.addConstraint(Sketcher.Constraint("DistanceY", 1, 1, 1, 2, Q("5.082465 mm")))
sketch13.addConstraint(Sketcher.Constraint("DistanceY", 0, 2, -1, 1, Q("35.010231 mm")))
sketch13.addConstraint(Sketcher.Constraint("DistanceY", 4, 2, 2, 2, Q("0.087851 mm")))
sketch13.addConstraint(Sketcher.Constraint("DistanceX", 0, 2, -1, 1, Q("36.984003 mm")))
pocket4 = body.newObject("PartDesign::Pocket", "Pocket003")
pocket4.Profile = sketch13
pocket4.Length = 10
pocket4.Reversed = True

doc.recompute()
